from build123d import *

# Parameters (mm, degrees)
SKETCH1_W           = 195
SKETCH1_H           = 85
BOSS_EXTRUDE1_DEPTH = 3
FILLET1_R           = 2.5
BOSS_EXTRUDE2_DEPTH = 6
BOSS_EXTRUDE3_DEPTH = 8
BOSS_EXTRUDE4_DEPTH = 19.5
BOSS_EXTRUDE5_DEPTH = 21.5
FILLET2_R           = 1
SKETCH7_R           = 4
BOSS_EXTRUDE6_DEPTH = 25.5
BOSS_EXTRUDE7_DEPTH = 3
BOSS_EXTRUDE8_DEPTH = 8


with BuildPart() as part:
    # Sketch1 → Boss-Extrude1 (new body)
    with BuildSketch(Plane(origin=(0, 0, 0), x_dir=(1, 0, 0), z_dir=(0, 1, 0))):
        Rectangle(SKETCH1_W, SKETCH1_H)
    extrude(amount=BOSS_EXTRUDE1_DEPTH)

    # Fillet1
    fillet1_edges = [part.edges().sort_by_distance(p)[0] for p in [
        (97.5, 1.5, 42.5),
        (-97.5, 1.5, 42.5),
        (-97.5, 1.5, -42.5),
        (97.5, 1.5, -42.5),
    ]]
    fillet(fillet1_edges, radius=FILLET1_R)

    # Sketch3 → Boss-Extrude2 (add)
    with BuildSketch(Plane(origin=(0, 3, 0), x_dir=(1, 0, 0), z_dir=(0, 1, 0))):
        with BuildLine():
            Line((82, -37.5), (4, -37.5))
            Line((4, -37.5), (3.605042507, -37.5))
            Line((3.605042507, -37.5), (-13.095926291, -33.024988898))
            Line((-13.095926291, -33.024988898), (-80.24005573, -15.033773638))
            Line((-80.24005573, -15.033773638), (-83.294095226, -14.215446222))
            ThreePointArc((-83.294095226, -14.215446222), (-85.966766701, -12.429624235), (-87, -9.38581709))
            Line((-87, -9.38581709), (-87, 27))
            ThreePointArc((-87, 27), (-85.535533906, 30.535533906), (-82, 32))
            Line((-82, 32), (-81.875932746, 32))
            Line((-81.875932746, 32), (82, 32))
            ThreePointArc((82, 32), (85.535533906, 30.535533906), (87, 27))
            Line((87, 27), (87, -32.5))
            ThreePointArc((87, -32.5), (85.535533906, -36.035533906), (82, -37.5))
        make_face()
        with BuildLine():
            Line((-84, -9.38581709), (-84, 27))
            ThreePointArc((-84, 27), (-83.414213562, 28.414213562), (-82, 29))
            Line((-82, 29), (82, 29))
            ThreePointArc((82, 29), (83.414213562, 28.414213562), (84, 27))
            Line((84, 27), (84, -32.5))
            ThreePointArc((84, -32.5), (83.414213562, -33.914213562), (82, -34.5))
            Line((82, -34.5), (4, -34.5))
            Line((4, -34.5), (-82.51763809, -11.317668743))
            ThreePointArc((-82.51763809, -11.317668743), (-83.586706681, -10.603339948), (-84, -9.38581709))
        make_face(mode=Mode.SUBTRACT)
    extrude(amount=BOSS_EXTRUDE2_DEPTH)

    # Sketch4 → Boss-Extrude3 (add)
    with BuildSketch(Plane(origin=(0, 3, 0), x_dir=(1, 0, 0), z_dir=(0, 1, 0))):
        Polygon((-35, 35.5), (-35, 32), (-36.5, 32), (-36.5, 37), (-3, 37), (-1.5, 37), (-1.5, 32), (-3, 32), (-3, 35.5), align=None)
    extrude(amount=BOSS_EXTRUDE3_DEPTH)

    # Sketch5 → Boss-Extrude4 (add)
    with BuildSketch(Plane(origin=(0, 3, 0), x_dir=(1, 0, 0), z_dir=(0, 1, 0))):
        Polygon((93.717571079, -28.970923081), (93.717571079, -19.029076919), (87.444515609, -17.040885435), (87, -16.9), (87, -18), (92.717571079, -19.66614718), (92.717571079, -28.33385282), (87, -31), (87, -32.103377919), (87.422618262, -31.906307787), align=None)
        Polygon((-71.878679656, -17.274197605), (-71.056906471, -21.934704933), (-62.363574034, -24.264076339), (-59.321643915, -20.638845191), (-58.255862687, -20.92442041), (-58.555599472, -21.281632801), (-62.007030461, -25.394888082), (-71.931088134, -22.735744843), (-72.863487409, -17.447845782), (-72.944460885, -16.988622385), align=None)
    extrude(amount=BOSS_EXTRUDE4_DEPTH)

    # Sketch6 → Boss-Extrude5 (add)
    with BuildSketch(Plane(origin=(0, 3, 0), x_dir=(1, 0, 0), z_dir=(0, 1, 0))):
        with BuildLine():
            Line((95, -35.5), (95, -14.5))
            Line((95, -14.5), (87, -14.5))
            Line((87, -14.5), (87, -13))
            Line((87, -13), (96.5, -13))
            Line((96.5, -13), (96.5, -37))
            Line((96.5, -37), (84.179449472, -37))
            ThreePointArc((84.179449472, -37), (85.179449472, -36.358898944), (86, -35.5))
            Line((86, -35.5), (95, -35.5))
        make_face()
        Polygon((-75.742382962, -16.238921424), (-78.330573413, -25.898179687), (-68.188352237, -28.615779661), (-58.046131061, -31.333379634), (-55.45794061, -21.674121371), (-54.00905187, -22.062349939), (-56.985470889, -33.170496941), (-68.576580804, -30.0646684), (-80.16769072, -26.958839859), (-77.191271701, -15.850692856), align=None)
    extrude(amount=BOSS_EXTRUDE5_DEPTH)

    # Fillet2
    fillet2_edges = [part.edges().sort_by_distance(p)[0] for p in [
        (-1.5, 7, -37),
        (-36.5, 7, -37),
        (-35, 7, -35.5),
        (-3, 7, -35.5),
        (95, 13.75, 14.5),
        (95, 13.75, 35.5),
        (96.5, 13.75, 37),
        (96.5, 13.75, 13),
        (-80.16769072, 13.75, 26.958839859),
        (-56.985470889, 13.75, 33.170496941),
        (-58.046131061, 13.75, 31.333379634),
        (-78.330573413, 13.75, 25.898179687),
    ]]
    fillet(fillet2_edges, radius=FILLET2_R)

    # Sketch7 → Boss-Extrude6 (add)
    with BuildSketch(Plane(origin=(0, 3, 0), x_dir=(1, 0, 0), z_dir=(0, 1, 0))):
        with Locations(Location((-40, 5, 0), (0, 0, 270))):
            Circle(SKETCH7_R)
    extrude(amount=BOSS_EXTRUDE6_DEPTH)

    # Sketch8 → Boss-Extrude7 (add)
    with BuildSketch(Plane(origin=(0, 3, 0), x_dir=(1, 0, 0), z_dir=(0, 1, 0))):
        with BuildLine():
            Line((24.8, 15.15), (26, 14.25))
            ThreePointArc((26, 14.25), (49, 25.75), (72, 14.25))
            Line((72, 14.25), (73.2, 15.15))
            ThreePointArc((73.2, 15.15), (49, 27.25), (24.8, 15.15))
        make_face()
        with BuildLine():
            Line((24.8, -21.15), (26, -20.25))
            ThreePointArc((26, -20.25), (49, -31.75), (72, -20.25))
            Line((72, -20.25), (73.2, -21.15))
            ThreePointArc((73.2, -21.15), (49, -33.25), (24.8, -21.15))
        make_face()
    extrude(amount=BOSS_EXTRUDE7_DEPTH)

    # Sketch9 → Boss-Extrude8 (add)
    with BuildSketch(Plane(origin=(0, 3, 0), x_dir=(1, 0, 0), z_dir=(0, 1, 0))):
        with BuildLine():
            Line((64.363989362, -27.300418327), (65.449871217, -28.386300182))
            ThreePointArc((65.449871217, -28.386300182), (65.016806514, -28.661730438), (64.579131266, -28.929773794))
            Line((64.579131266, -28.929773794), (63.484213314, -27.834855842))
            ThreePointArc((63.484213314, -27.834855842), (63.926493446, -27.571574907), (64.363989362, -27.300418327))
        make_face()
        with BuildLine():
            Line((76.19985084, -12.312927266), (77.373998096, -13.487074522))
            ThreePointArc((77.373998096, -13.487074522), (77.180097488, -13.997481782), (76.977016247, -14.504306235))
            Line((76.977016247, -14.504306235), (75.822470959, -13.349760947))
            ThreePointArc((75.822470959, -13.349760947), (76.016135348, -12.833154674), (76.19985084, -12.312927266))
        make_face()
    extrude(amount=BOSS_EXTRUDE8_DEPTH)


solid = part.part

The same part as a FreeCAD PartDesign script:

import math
import FreeCAD as App
import Part
import Sketcher
Q = App.Units.Quantity


def edges_at(feature, points):
    """Names of the edges that pass closest to the given points."""
    edges = feature.Shape.Edges
    near = lambda p: min(range(len(edges)), key=lambda i: edges[i].distToShape(Part.Vertex(*p))[0])
    return sorted({f"Edge{near(p) + 1}" for p in points})


def add_polygon(sketch, points):
    """Adds a closed chain of lines whose ends are joined by coincident constraints."""
    first, n = sketch.GeometryCount, len(points)
    for a, b in zip(points, points[1:] + points[:1]):
        sketch.addGeometry(Part.LineSegment(App.Vector(*a, 0), App.Vector(*b, 0)), False)
    for i in range(n):
        sketch.addConstraint(Sketcher.Constraint("Coincident", first + i, 2, first + (i + 1) % n, 1))

doc = App.newDocument("Part")
body = doc.addObject("PartDesign::Body", "Body")

# Sketch on XZ plane
sketch1 = doc.addObject("Sketcher::SketchObject", "Sketch")
body.addObject(sketch1)
sketch1.AttachmentSupport = (doc.XZ_Plane, [""])
sketch1.MapMode = "FlatFace"
add_polygon(sketch1, [(-98, -42), (-98, 42), (98, 42), (98, -42)])  # lines 0-3
sketch1.addConstraint([
    Sketcher.Constraint("Vertical", 0),
    Sketcher.Constraint("Horizontal", 1),
    Sketcher.Constraint("Vertical", 2),
    Sketcher.Constraint("Horizontal", 3),
    Sketcher.Constraint("Symmetric", 0, 2, 2, 2, -1, 1),
    Sketcher.Constraint("DistanceX", 1, 1, 1, 2, 195.0),
    Sketcher.Constraint("DistanceY", 0, 1, 0, 2, 85.0),
])
pad1 = doc.addObject("PartDesign::Pad", "Pad")
body.addObject(pad1)
pad1.Profile = sketch1
pad1.Length = 3
pad1.Reversed = True
doc.recompute()

fillet = doc.addObject("PartDesign::Fillet", "Fillet")
body.addObject(fillet)
fillet.Base = (pad1, edges_at(pad1, [
    (97.5, 1.5, 42.5),
    (-97.5, 1.5, 42.5),
    (-97.5, 1.5, -42.5),
    (97.5, 1.5, -42.5),
]))
fillet.Radius = 2.5

# Sketch on XZ plane
sketch2 = doc.addObject("Sketcher::SketchObject", "Sketch001")
body.addObject(sketch2)
sketch2.AttachmentSupport = (doc.XZ_Plane, [""])
sketch2.MapMode = "FlatFace"
sketch2.AttachmentOffset = App.Placement(App.Vector(0, 0, -3), App.Rotation())
sketch2.addGeometry([
    Part.LineSegment(App.Vector(3.6, 37.5, 0), App.Vector(82, 37.5, 0)),  # 0
    Part.ArcOfCircle(Part.Circle(App.Vector(82, 32.5, 0), App.Vector(0, 0, 1), 5), math.radians(0), math.radians(90)),  # 1
    Part.LineSegment(App.Vector(87, 32.5, 0), App.Vector(87, -27, 0)),  # 2
    Part.ArcOfCircle(Part.Circle(App.Vector(82, -27, 0), App.Vector(0, 0, 1), 5), math.radians(-90), math.radians(0)),  # 3
    Part.LineSegment(App.Vector(82, -32, 0), App.Vector(-82, -32, 0)),  # 4
    Part.ArcOfCircle(Part.Circle(App.Vector(-82, -27, 0), App.Vector(0, 0, 1), 5), math.radians(180), math.radians(270)),  # 5
    Part.LineSegment(App.Vector(-87, -27, 0), App.Vector(-87, 9.4, 0)),  # 6
    Part.ArcOfCircle(Part.Circle(App.Vector(-82, 9.4, 0), App.Vector(0, 0, 1), 5), math.radians(105), math.radians(180)),  # 7
    Part.LineSegment(App.Vector(-83.3, 14.2, 0), App.Vector(-80.2, 15, 0)),  # 8
    Part.LineSegment(App.Vector(-80.2, 15, 0), App.Vector(-13.1, 33, 0)),  # 9
    Part.LineSegment(App.Vector(-13.1, 33, 0), App.Vector(3.6, 37.5, 0)),  # 10
    Part.LineSegment(App.Vector(-84, 9.4, 0), App.Vector(-84, -27, 0)),  # 11
    Part.ArcOfCircle(Part.Circle(App.Vector(-82, -27, 0), App.Vector(0, 0, 1), 2), math.radians(-180), math.radians(-90)),  # 12
    Part.LineSegment(App.Vector(-82, -29, 0), App.Vector(82, -29, 0)),  # 13
    Part.ArcOfCircle(Part.Circle(App.Vector(82, -27, 0), App.Vector(0, 0, 1), 2), math.radians(-90), math.radians(0)),  # 14
    Part.LineSegment(App.Vector(84, -27, 0), App.Vector(84, 32.5, 0)),  # 15
    Part.ArcOfCircle(Part.Circle(App.Vector(82, 32.5, 0), App.Vector(0, 0, 1), 2), math.radians(0), math.radians(90)),  # 16
    Part.LineSegment(App.Vector(82, 34.5, 0), App.Vector(4, 34.5, 0)),  # 17
    Part.LineSegment(App.Vector(4, 34.5, 0), App.Vector(-82.5, 11.3, 0)),  # 18
    Part.ArcOfCircle(Part.Circle(App.Vector(-82, 9.4, 0), App.Vector(0, 0, 1), 2), math.radians(105), math.radians(180)),  # 19
], False)
sketch2.addConstraint([
    Sketcher.Constraint("Tangent", 0, 2, 1, 2),
    Sketcher.Constraint("Tangent", 1, 1, 2, 1),
    Sketcher.Constraint("Tangent", 2, 2, 3, 2),
    Sketcher.Constraint("Tangent", 3, 1, 4, 1),
    Sketcher.Constraint("Tangent", 4, 2, 5, 2),
    Sketcher.Constraint("Tangent", 5, 1, 6, 1),
    Sketcher.Constraint("Tangent", 6, 2, 7, 2),
    Sketcher.Constraint("Tangent", 7, 1, 8, 1),
    Sketcher.Constraint("Coincident", 8, 2, 9, 1),
    Sketcher.Constraint("Coincident", 9, 2, 10, 1),
    Sketcher.Constraint("Coincident", 10, 2, 0, 1),
    Sketcher.Constraint("Tangent", 11, 2, 12, 1),
    Sketcher.Constraint("Tangent", 12, 2, 13, 1),
    Sketcher.Constraint("Tangent", 13, 2, 14, 1),
    Sketcher.Constraint("Tangent", 14, 2, 15, 1),
    Sketcher.Constraint("Tangent", 15, 2, 16, 1),
    Sketcher.Constraint("Tangent", 16, 2, 17, 1),
    Sketcher.Constraint("Coincident", 17, 2, 18, 1),
    Sketcher.Constraint("Tangent", 18, 2, 19, 1),
    Sketcher.Constraint("Tangent", 19, 2, 11, 1),
    Sketcher.Constraint("Horizontal", 0),
    Sketcher.Constraint("Vertical", 2),
    Sketcher.Constraint("Horizontal", 4),
    Sketcher.Constraint("Vertical", 6),
    Sketcher.Constraint("Vertical", 11),
    Sketcher.Constraint("Horizontal", 13),
    Sketcher.Constraint("Vertical", 15),
    Sketcher.Constraint("Horizontal", 17),
    Sketcher.Constraint("Coincident", 12, 3, 5, 3),
    Sketcher.Constraint("Coincident", 14, 3, 3, 3),
    Sketcher.Constraint("Coincident", 16, 3, 1, 3),
    Sketcher.Constraint("Coincident", 19, 3, 7, 3),
    Sketcher.Constraint("Equal", 1, 3),
    Sketcher.Constraint("Equal", 3, 5),
    Sketcher.Constraint("Equal", 5, 7),
    Sketcher.Constraint("Parallel", 8, 9),
    Sketcher.Constraint("Parallel", 9, 10),
    Sketcher.Constraint("Parallel", 10, 18),
    Sketcher.Constraint("Radius", 1, 5.0),
    Sketcher.Constraint("Radius", 12, 2.0),
    Sketcher.Constraint("DistanceX", 4, 2, 4, 1, 164.0),
    Sketcher.Constraint("DistanceX", 17, 2, 17, 1, 78.0),
    Sketcher.Constraint("Angle", 8, Q("15 deg")),
    Sketcher.Constraint("DistanceY", 2, 2, 2, 1, 59.5),
    Sketcher.Constraint("DistanceX", -1, 1, 1, 3, 82.0),
    Sketcher.Constraint("DistanceY", 3, 3, -1, 1, 27.0),
    Sketcher.Constraint("DistanceY", -1, 1, 9, 2, 33.024989),
    Sketcher.Constraint("DistanceX", 7, 1, 8, 2, 3.054039),
])
pad2 = doc.addObject("PartDesign::Pad", "Pad001")
body.addObject(pad2)
pad2.Profile = sketch2
pad2.Length = 6
pad2.Reversed = True

# Sketch on XZ plane
sketch3 = doc.addObject("Sketcher::SketchObject", "Sketch002")
body.addObject(sketch3)
sketch3.AttachmentSupport = (doc.XZ_Plane, [""])
sketch3.MapMode = "FlatFace"
sketch3.AttachmentOffset = App.Placement(App.Vector(0, 0, -3), App.Rotation())
add_polygon(sketch3, [(-35, -32), (-35, -35.5), (-3, -35.5), (-3, -32), (-1.5, -32), (-1.5, -37), (-36.5, -37), (-36.5, -32)])  # lines 0-7
sketch3.addConstraint([
    Sketcher.Constraint("Vertical", 0),
    Sketcher.Constraint("Horizontal", 1),
    Sketcher.Constraint("Vertical", 2),
    Sketcher.Constraint("Horizontal", 3),
    Sketcher.Constraint("Vertical", 4),
    Sketcher.Constraint("Horizontal", 5),
    Sketcher.Constraint("Vertical", 6),
    Sketcher.Constraint("Horizontal", 7),
    Sketcher.Constraint("Horizontal", 3, 2, 6, 2),
    Sketcher.Constraint("Equal", 3, 7),
    Sketcher.Constraint("DistanceX", 1, 1, 1, 2, 32.0),
    Sketcher.Constraint("DistanceX", 5, 2, 5, 1, 35.0),
    Sketcher.Constraint("DistanceY", 4, 2, 4, 1, 5.0),
    Sketcher.Constraint("DistanceY", 0, 2, 0, 1, 3.5),
    Sketcher.Constraint("DistanceX", 0, 2, -1, 1, 35.0),
    Sketcher.Constraint("DistanceY", 2, 2, -1, 1, 32.0),
])
pad3 = doc.addObject("PartDesign::Pad", "Pad002")
body.addObject(pad3)
pad3.Profile = sketch3
pad3.Length = 8
pad3.Reversed = True

# Sketch on XZ plane
sketch4 = doc.addObject("Sketcher::SketchObject", "Sketch003")
body.addObject(sketch4)
sketch4.AttachmentSupport = (doc.XZ_Plane, [""])
sketch4.MapMode = "FlatFace"
sketch4.AttachmentOffset = App.Placement(App.Vector(0, 0, -3), App.Rotation())
add_polygon(sketch4, [(93.72, 28.97), (93.72, 19.03), (87.44, 17.04), (87, 16.9), (87, 18), (92.72, 19.67), (92.72, 28.33), (87, 31), (87, 32.1), (87.42, 31.91)])  # lines 0-9
add_polygon(sketch4, [(-71.06, 21.93), (-71.88, 17.27), (-72.94, 16.99), (-72.86, 17.45), (-71.93, 22.74), (-62.01, 25.39), (-58.56, 21.28), (-58.26, 20.92), (-59.32, 20.64), (-62.36, 24.26)])  # lines 10-19
sketch4.addConstraint([
    Sketcher.Constraint("Vertical", 0),
    Sketcher.Constraint("Vertical", 3),
    Sketcher.Constraint("Vertical", 5),
    Sketcher.Constraint("Vertical", 7),
    Sketcher.Constraint("Parallel", 1, 2),
    Sketcher.Constraint("Parallel", 6, 8),
    Sketcher.Constraint("Parallel", 8, 9),
    Sketcher.Constraint("Parallel", 10, 12),
    Sketcher.Constraint("Parallel", 12, 13),
    Sketcher.Constraint("Parallel", 11, 14),
    Sketcher.Constraint("Parallel", 15, 16),
    Sketcher.Constraint("Parallel", 14, 17),
    Sketcher.Constraint("Parallel", 16, 18),
    Sketcher.Constraint("Parallel", 17, 19),
    Sketcher.Constraint("Vertical", 3, 2, 6, 2),
    Sketcher.Constraint("Equal", 2, 8),
    Sketcher.Constraint("Equal", 8, 12),
    Sketcher.Constraint("Equal", 13, 15),
    Sketcher.Constraint("Equal", 12, 16),
    Sketcher.Constraint("Equal", 11, 17),
    Sketcher.Constraint("Equal", 10, 18),
    Sketcher.Constraint("Angle", 6, Q("155 deg")),
    Sketcher.Constraint("Angle", 10, Q("-100 deg")),
    Sketcher.Constraint("Angle", 11, Q("-165 deg")),
    Sketcher.Constraint("Distance", 19, 9.0),
    Sketcher.Constraint("DistanceY", 3, 1, 3, 2, 1.1),
    Sketcher.Constraint("DistanceX", -1, 1, 2, 2, 87.0),
    Sketcher.Constraint("DistanceY", -1, 1, 3, 2, 18.0),
    Sketcher.Constraint("DistanceY", -1, 1, 6, 2, 31.0),
    Sketcher.Constraint("DistanceX", 4, 2, 0, 2, 1.0),
    Sketcher.Constraint("DistanceX", 15, 2, -1, 1, 58.555599),
    Sketcher.Constraint("DistanceY", 0, 2, 7, 2, 13.074301),
    Sketcher.Constraint("DistanceX", 12, 2, 13, 2, 0.932399),
    Sketcher.Constraint("DistanceY", 17, 2, 13, 2, 2.0969),
    Sketcher.Constraint("Distance", 4, 5.95539),
    Sketcher.Constraint("Distance", 6, 6.308642),
    Sketcher.Constraint("Distance", 9, 6.945712),
    Sketcher.Constraint("Distance", 14, 10.274141),
    Sketcher.Constraint("DistanceY", 7, 1, 7, 2, 1.103378),
    Sketcher.Constraint("DistanceY", -1, 1, 14, 2, 25.394888),
])
pad4 = doc.addObject("PartDesign::Pad", "Pad003")
body.addObject(pad4)
pad4.Profile = sketch4
pad4.Length = 19.5
pad4.Reversed = True

# Sketch on XZ plane
sketch5 = doc.addObject("Sketcher::SketchObject", "Sketch004")
body.addObject(sketch5)
sketch5.AttachmentSupport = (doc.XZ_Plane, [""])
sketch5.MapMode = "FlatFace"
sketch5.AttachmentOffset = App.Placement(App.Vector(0, 0, -3), App.Rotation())
sketch5.addGeometry(Part.LineSegment(App.Vector(95, 14.5, 0), App.Vector(95, 35.5, 0)), False)  # 0
sketch5.addGeometry(Part.LineSegment(App.Vector(95, 35.5, 0), App.Vector(86, 35.5, 0)), False)  # 1
sketch5.addGeometry(Part.ArcOfCircle(Part.Circle(App.Vector(82, 32.5, 0), App.Vector(0, 0, 1), 5), math.radians(37), math.radians(64)), False)  # 2
sketch5.addGeometry(Part.LineSegment(App.Vector(84.2, 37, 0), App.Vector(96.5, 37, 0)), False)  # 3
sketch5.addGeometry(Part.LineSegment(App.Vector(96.5, 37, 0), App.Vector(96.5, 13, 0)), False)  # 4
sketch5.addGeometry(Part.LineSegment(App.Vector(96.5, 13, 0), App.Vector(87, 13, 0)), False)  # 5
sketch5.addGeometry(Part.LineSegment(App.Vector(87, 13, 0), App.Vector(87, 14.5, 0)), False)  # 6
sketch5.addGeometry(Part.LineSegment(App.Vector(87, 14.5, 0), App.Vector(95, 14.5, 0)), False)  # 7
add_polygon(sketch5, [(-78.3, 25.9), (-75.7, 16.2), (-77.2, 15.9), (-80.2, 27), (-68.6, 30.1), (-57, 33.2), (-54, 22.1), (-55.5, 21.7), (-58, 31.3), (-68.2, 28.6)])  # lines 8-17
sketch5.addConstraint([
    Sketcher.Constraint("Coincident", 0, 2, 1, 1),
    Sketcher.Constraint("Coincident", 1, 2, 2, 1),
    Sketcher.Constraint("Coincident", 2, 2, 3, 1),
    Sketcher.Constraint("Coincident", 3, 2, 4, 1),
    Sketcher.Constraint("Coincident", 4, 2, 5, 1),
    Sketcher.Constraint("Coincident", 5, 2, 6, 1),
    Sketcher.Constraint("Coincident", 6, 2, 7, 1),
    Sketcher.Constraint("Coincident", 7, 2, 0, 1),
    Sketcher.Constraint("Vertical", 0),
    Sketcher.Constraint("Horizontal", 1),
    Sketcher.Constraint("Horizontal", 3),
    Sketcher.Constraint("Vertical", 4),
    Sketcher.Constraint("Horizontal", 5),
    Sketcher.Constraint("Vertical", 6),
    Sketcher.Constraint("Horizontal", 7),
    Sketcher.Constraint("Perpendicular", 8, 9),
    Sketcher.Constraint("Perpendicular", 9, 10),
    Sketcher.Constraint("Perpendicular", 10, 11),
    Sketcher.Constraint("Parallel", 11, 12),
    Sketcher.Constraint("Perpendicular", 12, 13),
    Sketcher.Constraint("Perpendicular", 13, 14),
    Sketcher.Constraint("Perpendicular", 14, 15),
    Sketcher.Constraint("Perpendicular", 15, 16),
    Sketcher.Constraint("Parallel", 16, 17),
    Sketcher.Constraint("Equal", 11, 12),
    Sketcher.Constraint("Equal", 10, 13),
    Sketcher.Constraint("Equal", 9, 14),
    Sketcher.Constraint("Equal", 16, 17),
    Sketcher.Constraint("Radius", 2, 5.0),
    Sketcher.Constraint("DistanceX", 1, 2, 1, 1, 9.0),
    Sketcher.Constraint("DistanceX", 7, 1, 7, 2, 8.0),
    Sketcher.Constraint("DistanceY", 0, 1, 0, 2, 21.0),
    Sketcher.Constraint("DistanceY", 4, 2, 4, 1, 24.0),
    Sketcher.Constraint("Angle", 8, Q("-75 deg")),
    Sketcher.Constraint("Distance", 8, 10.0),
    Sketcher.Constraint("Distance", 11, 12.0),
    Sketcher.Constraint("DistanceX", 5, 2, 5, 1, 9.5),
    Sketcher.Constraint("DistanceY", 6, 1, 6, 2, 1.5),
    Sketcher.Constraint("DistanceX", -1, 1, 2, 3, 82.0),
    Sketcher.Constraint("DistanceX", -1, 1, 0, 2, 95.0),
    Sketcher.Constraint("DistanceY", -1, 1, 2, 2, 37.0),
    Sketcher.Constraint("Distance", 9, 1.5),
    Sketcher.Constraint("Distance", 10, 11.5),
    Sketcher.Constraint("DistanceY", -1, 1, 8, 2, 16.238921),
    Sketcher.Constraint("DistanceX", 9, 2, -1, 1, 77.191272),
])
pad5 = doc.addObject("PartDesign::Pad", "Pad004")
body.addObject(pad5)
pad5.Profile = sketch5
pad5.Length = 21.5
pad5.Reversed = True
doc.recompute()

fillet2 = doc.addObject("PartDesign::Fillet", "Fillet001")
body.addObject(fillet2)
fillet2.Base = (pad5, edges_at(pad5, [
    (-1.5, 7, -37),
    (-36.5, 7, -37),
    (-35, 7, -35.5),
    (-3, 7, -35.5),
    (95, 13.75, 14.5),
    (95, 13.75, 35.5),
    (96.5, 13.75, 37),
    (96.5, 13.75, 13),
    (-80.168, 13.75, 26.959),
    (-56.985, 13.75, 33.17),
    (-58.046, 13.75, 31.333),
    (-78.331, 13.75, 25.898),
]))
fillet2.Radius = 1

# Sketch on XZ plane
sketch6 = doc.addObject("Sketcher::SketchObject", "Sketch005")
body.addObject(sketch6)
sketch6.AttachmentSupport = (doc.XZ_Plane, [""])
sketch6.MapMode = "FlatFace"
sketch6.AttachmentOffset = App.Placement(App.Vector(0, 0, -3), App.Rotation())
sketch6.addGeometry(Part.Circle(App.Vector(-40, -5, 0), App.Vector(0, 0, 1), 4), False)
sketch6.addConstraint([
    Sketcher.Constraint("Diameter", 0, 8.0),
    Sketcher.Constraint("DistanceX", 0, 3, -1, 1, 40.0),
    Sketcher.Constraint("DistanceY", 0, 3, -1, 1, 5.0),
])
pad6 = doc.addObject("PartDesign::Pad", "Pad005")
body.addObject(pad6)
pad6.Profile = sketch6
pad6.Length = 25.5
pad6.Reversed = True

# Sketch on XZ plane
sketch7 = doc.addObject("Sketcher::SketchObject", "Sketch006")
body.addObject(sketch7)
sketch7.AttachmentSupport = (doc.XZ_Plane, [""])
sketch7.MapMode = "FlatFace"
sketch7.AttachmentOffset = App.Placement(App.Vector(0, 0, -3), App.Rotation())
sketch7.addGeometry([
    Part.LineSegment(App.Vector(24.8, -15.2, 0), App.Vector(26, -14.2, 0)),  # 0
    Part.ArcOfCircle(Part.Circle(App.Vector(49, 3, 0), App.Vector(0, 0, 1), 28.8), math.radians(-143), math.radians(-37)),  # 1
    Part.LineSegment(App.Vector(72, -14.2, 0), App.Vector(73.2, -15.2, 0)),  # 2
    Part.ArcOfCircle(Part.Circle(App.Vector(49, 3, 0), App.Vector(0, 0, 1), 30.2), math.radians(-143), math.radians(-37)),  # 3
    Part.LineSegment(App.Vector(26, 20.2, 0), App.Vector(24.8, 21.1, 0)),  # 4
    Part.ArcOfCircle(Part.Circle(App.Vector(49, 3, 0), App.Vector(0, 0, 1), 30.2), math.radians(37), math.radians(143)),  # 5
    Part.LineSegment(App.Vector(73.2, 21.1, 0), App.Vector(72, 20.2, 0)),  # 6
    Part.ArcOfCircle(Part.Circle(App.Vector(49, 3, 0), App.Vector(0, 0, 1), 28.8), math.radians(37), math.radians(143)),  # 7
], False)
sketch7.addConstraint([
    Sketcher.Constraint("Coincident", 0, 2, 1, 1),
    Sketcher.Constraint("Coincident", 1, 2, 2, 1),
    Sketcher.Constraint("Coincident", 2, 2, 3, 2),
    Sketcher.Constraint("Coincident", 3, 1, 0, 1),
    Sketcher.Constraint("Coincident", 4, 2, 5, 2),
    Sketcher.Constraint("Coincident", 5, 1, 6, 1),
    Sketcher.Constraint("Coincident", 6, 2, 7, 1),
    Sketcher.Constraint("Coincident", 7, 2, 4, 1),
    Sketcher.Constraint("Coincident", 3, 3, 1, 3),
    Sketcher.Constraint("Coincident", 5, 3, 1, 3),
    Sketcher.Constraint("Coincident", 7, 3, 1, 3),
    Sketcher.Constraint("Equal", 3, 5),
    Sketcher.Constraint("Equal", 1, 7),
    Sketcher.Constraint("Parallel", 2, 4),
    Sketcher.Constraint("Parallel", 0, 6),
    Sketcher.Constraint("Horizontal", 0, 2, 1, 2),
    Sketcher.Constraint("Horizontal", 2, 2, 3, 1),
    Sketcher.Constraint("Horizontal", 4, 2, 5, 1),
    Sketcher.Constraint("Vertical", 3, 1, 4, 2),
    Sketcher.Constraint("Radius", 1, 28.75),
    Sketcher.Constraint("Radius", 3, 30.25),
    Sketcher.Constraint("DistanceX", -1, 1, 1, 3, 49.0),
    Sketcher.Constraint("DistanceY", -1, 1, 1, 3, 3.0),
    Sketcher.Constraint("DistanceX", -1, 1, 0, 2, 26.0),
    Sketcher.Constraint("DistanceX", -1, 1, 2, 2, 73.2),
])
pad7 = doc.addObject("PartDesign::Pad", "Pad006")
body.addObject(pad7)
pad7.Profile = sketch7
pad7.Length = 3
pad7.Reversed = True

# Sketch on XZ plane
sketch8 = doc.addObject("Sketcher::SketchObject", "Sketch007")
body.addObject(sketch8)
sketch8.AttachmentSupport = (doc.XZ_Plane, [""])
sketch8.MapMode = "FlatFace"
sketch8.AttachmentOffset = App.Placement(App.Vector(0, 0, -3), App.Rotation())
sketch8.addGeometry([
    Part.LineSegment(App.Vector(65.4, 28.4, 0), App.Vector(64.4, 27.3, 0)),  # 0
    Part.ArcOfCircle(Part.Circle(App.Vector(49, 3, 0), App.Vector(0, 0, 1), 28.7), math.radians(57.7), math.radians(59.75)),  # 1
    Part.LineSegment(App.Vector(63.5, 27.8, 0), App.Vector(64.6, 28.9, 0)),  # 2
    Part.ArcOfCircle(Part.Circle(App.Vector(49, 3, 0), App.Vector(0, 0, 1), 30.3), math.radians(57.06), math.radians(59)),  # 3
    Part.LineSegment(App.Vector(77.4, 13.5, 0), App.Vector(76.2, 12.3, 0)),  # 4
    Part.ArcOfCircle(Part.Circle(App.Vector(49, 3, 0), App.Vector(0, 0, 1), 28.8), math.radians(18.9), math.radians(21.1)),  # 5
    Part.LineSegment(App.Vector(75.8, 13.3, 0), App.Vector(77, 14.5, 0)),  # 6
    Part.ArcOfCircle(Part.Circle(App.Vector(49, 3, 0), App.Vector(0, 0, 1), 30.3), math.radians(20.28), math.radians(22.35)),  # 7
], False)
sketch8.addConstraint([
    Sketcher.Constraint("Coincident", 0, 2, 1, 1),
    Sketcher.Constraint("Coincident", 1, 2, 2, 1),
    Sketcher.Constraint("Coincident", 2, 2, 3, 2),
    Sketcher.Constraint("Coincident", 3, 1, 0, 1),
    Sketcher.Constraint("Coincident", 4, 2, 5, 1),
    Sketcher.Constraint("Coincident", 5, 2, 6, 1),
    Sketcher.Constraint("Coincident", 6, 2, 7, 2),
    Sketcher.Constraint("Coincident", 7, 1, 4, 1),
    Sketcher.Constraint("Coincident", 3, 3, 1, 3),
    Sketcher.Constraint("Coincident", 5, 3, 1, 3),
    Sketcher.Constraint("Coincident", 7, 3, 1, 3),
    Sketcher.Constraint("Equal", 1, 5),
    Sketcher.Constraint("Equal", 3, 7),
    Sketcher.Constraint("Parallel", 0, 2),
    Sketcher.Constraint("Parallel", 2, 4),
    Sketcher.Constraint("Parallel", 4, 6),
    Sketcher.Constraint("Angle", 0, Q("-135 deg")),
    Sketcher.Constraint("Radius", 1, 28.75),
    Sketcher.Constraint("DistanceX", -1, 1, 1, 3, 49.0),
    Sketcher.Constraint("DistanceY", -1, 1, 1, 3, 3.0),
    Sketcher.Constraint("DistanceX", -1, 1, 7, 1, 77.373998),
    Sketcher.Constraint("Radius", 3, 30.250002),
    Sketcher.Constraint("DistanceY", -1, 1, 3, 1, 28.3863),
    Sketcher.Constraint("DistanceX", 3, 1, 5, 2, 10.3726),
    Sketcher.Constraint("DistanceX", -1, 1, 2, 2, 64.579131),
])
pad8 = doc.addObject("PartDesign::Pad", "Pad007")
body.addObject(pad8)
pad8.Profile = sketch8
pad8.Length = 8
pad8.Reversed = True

doc.recompute()
